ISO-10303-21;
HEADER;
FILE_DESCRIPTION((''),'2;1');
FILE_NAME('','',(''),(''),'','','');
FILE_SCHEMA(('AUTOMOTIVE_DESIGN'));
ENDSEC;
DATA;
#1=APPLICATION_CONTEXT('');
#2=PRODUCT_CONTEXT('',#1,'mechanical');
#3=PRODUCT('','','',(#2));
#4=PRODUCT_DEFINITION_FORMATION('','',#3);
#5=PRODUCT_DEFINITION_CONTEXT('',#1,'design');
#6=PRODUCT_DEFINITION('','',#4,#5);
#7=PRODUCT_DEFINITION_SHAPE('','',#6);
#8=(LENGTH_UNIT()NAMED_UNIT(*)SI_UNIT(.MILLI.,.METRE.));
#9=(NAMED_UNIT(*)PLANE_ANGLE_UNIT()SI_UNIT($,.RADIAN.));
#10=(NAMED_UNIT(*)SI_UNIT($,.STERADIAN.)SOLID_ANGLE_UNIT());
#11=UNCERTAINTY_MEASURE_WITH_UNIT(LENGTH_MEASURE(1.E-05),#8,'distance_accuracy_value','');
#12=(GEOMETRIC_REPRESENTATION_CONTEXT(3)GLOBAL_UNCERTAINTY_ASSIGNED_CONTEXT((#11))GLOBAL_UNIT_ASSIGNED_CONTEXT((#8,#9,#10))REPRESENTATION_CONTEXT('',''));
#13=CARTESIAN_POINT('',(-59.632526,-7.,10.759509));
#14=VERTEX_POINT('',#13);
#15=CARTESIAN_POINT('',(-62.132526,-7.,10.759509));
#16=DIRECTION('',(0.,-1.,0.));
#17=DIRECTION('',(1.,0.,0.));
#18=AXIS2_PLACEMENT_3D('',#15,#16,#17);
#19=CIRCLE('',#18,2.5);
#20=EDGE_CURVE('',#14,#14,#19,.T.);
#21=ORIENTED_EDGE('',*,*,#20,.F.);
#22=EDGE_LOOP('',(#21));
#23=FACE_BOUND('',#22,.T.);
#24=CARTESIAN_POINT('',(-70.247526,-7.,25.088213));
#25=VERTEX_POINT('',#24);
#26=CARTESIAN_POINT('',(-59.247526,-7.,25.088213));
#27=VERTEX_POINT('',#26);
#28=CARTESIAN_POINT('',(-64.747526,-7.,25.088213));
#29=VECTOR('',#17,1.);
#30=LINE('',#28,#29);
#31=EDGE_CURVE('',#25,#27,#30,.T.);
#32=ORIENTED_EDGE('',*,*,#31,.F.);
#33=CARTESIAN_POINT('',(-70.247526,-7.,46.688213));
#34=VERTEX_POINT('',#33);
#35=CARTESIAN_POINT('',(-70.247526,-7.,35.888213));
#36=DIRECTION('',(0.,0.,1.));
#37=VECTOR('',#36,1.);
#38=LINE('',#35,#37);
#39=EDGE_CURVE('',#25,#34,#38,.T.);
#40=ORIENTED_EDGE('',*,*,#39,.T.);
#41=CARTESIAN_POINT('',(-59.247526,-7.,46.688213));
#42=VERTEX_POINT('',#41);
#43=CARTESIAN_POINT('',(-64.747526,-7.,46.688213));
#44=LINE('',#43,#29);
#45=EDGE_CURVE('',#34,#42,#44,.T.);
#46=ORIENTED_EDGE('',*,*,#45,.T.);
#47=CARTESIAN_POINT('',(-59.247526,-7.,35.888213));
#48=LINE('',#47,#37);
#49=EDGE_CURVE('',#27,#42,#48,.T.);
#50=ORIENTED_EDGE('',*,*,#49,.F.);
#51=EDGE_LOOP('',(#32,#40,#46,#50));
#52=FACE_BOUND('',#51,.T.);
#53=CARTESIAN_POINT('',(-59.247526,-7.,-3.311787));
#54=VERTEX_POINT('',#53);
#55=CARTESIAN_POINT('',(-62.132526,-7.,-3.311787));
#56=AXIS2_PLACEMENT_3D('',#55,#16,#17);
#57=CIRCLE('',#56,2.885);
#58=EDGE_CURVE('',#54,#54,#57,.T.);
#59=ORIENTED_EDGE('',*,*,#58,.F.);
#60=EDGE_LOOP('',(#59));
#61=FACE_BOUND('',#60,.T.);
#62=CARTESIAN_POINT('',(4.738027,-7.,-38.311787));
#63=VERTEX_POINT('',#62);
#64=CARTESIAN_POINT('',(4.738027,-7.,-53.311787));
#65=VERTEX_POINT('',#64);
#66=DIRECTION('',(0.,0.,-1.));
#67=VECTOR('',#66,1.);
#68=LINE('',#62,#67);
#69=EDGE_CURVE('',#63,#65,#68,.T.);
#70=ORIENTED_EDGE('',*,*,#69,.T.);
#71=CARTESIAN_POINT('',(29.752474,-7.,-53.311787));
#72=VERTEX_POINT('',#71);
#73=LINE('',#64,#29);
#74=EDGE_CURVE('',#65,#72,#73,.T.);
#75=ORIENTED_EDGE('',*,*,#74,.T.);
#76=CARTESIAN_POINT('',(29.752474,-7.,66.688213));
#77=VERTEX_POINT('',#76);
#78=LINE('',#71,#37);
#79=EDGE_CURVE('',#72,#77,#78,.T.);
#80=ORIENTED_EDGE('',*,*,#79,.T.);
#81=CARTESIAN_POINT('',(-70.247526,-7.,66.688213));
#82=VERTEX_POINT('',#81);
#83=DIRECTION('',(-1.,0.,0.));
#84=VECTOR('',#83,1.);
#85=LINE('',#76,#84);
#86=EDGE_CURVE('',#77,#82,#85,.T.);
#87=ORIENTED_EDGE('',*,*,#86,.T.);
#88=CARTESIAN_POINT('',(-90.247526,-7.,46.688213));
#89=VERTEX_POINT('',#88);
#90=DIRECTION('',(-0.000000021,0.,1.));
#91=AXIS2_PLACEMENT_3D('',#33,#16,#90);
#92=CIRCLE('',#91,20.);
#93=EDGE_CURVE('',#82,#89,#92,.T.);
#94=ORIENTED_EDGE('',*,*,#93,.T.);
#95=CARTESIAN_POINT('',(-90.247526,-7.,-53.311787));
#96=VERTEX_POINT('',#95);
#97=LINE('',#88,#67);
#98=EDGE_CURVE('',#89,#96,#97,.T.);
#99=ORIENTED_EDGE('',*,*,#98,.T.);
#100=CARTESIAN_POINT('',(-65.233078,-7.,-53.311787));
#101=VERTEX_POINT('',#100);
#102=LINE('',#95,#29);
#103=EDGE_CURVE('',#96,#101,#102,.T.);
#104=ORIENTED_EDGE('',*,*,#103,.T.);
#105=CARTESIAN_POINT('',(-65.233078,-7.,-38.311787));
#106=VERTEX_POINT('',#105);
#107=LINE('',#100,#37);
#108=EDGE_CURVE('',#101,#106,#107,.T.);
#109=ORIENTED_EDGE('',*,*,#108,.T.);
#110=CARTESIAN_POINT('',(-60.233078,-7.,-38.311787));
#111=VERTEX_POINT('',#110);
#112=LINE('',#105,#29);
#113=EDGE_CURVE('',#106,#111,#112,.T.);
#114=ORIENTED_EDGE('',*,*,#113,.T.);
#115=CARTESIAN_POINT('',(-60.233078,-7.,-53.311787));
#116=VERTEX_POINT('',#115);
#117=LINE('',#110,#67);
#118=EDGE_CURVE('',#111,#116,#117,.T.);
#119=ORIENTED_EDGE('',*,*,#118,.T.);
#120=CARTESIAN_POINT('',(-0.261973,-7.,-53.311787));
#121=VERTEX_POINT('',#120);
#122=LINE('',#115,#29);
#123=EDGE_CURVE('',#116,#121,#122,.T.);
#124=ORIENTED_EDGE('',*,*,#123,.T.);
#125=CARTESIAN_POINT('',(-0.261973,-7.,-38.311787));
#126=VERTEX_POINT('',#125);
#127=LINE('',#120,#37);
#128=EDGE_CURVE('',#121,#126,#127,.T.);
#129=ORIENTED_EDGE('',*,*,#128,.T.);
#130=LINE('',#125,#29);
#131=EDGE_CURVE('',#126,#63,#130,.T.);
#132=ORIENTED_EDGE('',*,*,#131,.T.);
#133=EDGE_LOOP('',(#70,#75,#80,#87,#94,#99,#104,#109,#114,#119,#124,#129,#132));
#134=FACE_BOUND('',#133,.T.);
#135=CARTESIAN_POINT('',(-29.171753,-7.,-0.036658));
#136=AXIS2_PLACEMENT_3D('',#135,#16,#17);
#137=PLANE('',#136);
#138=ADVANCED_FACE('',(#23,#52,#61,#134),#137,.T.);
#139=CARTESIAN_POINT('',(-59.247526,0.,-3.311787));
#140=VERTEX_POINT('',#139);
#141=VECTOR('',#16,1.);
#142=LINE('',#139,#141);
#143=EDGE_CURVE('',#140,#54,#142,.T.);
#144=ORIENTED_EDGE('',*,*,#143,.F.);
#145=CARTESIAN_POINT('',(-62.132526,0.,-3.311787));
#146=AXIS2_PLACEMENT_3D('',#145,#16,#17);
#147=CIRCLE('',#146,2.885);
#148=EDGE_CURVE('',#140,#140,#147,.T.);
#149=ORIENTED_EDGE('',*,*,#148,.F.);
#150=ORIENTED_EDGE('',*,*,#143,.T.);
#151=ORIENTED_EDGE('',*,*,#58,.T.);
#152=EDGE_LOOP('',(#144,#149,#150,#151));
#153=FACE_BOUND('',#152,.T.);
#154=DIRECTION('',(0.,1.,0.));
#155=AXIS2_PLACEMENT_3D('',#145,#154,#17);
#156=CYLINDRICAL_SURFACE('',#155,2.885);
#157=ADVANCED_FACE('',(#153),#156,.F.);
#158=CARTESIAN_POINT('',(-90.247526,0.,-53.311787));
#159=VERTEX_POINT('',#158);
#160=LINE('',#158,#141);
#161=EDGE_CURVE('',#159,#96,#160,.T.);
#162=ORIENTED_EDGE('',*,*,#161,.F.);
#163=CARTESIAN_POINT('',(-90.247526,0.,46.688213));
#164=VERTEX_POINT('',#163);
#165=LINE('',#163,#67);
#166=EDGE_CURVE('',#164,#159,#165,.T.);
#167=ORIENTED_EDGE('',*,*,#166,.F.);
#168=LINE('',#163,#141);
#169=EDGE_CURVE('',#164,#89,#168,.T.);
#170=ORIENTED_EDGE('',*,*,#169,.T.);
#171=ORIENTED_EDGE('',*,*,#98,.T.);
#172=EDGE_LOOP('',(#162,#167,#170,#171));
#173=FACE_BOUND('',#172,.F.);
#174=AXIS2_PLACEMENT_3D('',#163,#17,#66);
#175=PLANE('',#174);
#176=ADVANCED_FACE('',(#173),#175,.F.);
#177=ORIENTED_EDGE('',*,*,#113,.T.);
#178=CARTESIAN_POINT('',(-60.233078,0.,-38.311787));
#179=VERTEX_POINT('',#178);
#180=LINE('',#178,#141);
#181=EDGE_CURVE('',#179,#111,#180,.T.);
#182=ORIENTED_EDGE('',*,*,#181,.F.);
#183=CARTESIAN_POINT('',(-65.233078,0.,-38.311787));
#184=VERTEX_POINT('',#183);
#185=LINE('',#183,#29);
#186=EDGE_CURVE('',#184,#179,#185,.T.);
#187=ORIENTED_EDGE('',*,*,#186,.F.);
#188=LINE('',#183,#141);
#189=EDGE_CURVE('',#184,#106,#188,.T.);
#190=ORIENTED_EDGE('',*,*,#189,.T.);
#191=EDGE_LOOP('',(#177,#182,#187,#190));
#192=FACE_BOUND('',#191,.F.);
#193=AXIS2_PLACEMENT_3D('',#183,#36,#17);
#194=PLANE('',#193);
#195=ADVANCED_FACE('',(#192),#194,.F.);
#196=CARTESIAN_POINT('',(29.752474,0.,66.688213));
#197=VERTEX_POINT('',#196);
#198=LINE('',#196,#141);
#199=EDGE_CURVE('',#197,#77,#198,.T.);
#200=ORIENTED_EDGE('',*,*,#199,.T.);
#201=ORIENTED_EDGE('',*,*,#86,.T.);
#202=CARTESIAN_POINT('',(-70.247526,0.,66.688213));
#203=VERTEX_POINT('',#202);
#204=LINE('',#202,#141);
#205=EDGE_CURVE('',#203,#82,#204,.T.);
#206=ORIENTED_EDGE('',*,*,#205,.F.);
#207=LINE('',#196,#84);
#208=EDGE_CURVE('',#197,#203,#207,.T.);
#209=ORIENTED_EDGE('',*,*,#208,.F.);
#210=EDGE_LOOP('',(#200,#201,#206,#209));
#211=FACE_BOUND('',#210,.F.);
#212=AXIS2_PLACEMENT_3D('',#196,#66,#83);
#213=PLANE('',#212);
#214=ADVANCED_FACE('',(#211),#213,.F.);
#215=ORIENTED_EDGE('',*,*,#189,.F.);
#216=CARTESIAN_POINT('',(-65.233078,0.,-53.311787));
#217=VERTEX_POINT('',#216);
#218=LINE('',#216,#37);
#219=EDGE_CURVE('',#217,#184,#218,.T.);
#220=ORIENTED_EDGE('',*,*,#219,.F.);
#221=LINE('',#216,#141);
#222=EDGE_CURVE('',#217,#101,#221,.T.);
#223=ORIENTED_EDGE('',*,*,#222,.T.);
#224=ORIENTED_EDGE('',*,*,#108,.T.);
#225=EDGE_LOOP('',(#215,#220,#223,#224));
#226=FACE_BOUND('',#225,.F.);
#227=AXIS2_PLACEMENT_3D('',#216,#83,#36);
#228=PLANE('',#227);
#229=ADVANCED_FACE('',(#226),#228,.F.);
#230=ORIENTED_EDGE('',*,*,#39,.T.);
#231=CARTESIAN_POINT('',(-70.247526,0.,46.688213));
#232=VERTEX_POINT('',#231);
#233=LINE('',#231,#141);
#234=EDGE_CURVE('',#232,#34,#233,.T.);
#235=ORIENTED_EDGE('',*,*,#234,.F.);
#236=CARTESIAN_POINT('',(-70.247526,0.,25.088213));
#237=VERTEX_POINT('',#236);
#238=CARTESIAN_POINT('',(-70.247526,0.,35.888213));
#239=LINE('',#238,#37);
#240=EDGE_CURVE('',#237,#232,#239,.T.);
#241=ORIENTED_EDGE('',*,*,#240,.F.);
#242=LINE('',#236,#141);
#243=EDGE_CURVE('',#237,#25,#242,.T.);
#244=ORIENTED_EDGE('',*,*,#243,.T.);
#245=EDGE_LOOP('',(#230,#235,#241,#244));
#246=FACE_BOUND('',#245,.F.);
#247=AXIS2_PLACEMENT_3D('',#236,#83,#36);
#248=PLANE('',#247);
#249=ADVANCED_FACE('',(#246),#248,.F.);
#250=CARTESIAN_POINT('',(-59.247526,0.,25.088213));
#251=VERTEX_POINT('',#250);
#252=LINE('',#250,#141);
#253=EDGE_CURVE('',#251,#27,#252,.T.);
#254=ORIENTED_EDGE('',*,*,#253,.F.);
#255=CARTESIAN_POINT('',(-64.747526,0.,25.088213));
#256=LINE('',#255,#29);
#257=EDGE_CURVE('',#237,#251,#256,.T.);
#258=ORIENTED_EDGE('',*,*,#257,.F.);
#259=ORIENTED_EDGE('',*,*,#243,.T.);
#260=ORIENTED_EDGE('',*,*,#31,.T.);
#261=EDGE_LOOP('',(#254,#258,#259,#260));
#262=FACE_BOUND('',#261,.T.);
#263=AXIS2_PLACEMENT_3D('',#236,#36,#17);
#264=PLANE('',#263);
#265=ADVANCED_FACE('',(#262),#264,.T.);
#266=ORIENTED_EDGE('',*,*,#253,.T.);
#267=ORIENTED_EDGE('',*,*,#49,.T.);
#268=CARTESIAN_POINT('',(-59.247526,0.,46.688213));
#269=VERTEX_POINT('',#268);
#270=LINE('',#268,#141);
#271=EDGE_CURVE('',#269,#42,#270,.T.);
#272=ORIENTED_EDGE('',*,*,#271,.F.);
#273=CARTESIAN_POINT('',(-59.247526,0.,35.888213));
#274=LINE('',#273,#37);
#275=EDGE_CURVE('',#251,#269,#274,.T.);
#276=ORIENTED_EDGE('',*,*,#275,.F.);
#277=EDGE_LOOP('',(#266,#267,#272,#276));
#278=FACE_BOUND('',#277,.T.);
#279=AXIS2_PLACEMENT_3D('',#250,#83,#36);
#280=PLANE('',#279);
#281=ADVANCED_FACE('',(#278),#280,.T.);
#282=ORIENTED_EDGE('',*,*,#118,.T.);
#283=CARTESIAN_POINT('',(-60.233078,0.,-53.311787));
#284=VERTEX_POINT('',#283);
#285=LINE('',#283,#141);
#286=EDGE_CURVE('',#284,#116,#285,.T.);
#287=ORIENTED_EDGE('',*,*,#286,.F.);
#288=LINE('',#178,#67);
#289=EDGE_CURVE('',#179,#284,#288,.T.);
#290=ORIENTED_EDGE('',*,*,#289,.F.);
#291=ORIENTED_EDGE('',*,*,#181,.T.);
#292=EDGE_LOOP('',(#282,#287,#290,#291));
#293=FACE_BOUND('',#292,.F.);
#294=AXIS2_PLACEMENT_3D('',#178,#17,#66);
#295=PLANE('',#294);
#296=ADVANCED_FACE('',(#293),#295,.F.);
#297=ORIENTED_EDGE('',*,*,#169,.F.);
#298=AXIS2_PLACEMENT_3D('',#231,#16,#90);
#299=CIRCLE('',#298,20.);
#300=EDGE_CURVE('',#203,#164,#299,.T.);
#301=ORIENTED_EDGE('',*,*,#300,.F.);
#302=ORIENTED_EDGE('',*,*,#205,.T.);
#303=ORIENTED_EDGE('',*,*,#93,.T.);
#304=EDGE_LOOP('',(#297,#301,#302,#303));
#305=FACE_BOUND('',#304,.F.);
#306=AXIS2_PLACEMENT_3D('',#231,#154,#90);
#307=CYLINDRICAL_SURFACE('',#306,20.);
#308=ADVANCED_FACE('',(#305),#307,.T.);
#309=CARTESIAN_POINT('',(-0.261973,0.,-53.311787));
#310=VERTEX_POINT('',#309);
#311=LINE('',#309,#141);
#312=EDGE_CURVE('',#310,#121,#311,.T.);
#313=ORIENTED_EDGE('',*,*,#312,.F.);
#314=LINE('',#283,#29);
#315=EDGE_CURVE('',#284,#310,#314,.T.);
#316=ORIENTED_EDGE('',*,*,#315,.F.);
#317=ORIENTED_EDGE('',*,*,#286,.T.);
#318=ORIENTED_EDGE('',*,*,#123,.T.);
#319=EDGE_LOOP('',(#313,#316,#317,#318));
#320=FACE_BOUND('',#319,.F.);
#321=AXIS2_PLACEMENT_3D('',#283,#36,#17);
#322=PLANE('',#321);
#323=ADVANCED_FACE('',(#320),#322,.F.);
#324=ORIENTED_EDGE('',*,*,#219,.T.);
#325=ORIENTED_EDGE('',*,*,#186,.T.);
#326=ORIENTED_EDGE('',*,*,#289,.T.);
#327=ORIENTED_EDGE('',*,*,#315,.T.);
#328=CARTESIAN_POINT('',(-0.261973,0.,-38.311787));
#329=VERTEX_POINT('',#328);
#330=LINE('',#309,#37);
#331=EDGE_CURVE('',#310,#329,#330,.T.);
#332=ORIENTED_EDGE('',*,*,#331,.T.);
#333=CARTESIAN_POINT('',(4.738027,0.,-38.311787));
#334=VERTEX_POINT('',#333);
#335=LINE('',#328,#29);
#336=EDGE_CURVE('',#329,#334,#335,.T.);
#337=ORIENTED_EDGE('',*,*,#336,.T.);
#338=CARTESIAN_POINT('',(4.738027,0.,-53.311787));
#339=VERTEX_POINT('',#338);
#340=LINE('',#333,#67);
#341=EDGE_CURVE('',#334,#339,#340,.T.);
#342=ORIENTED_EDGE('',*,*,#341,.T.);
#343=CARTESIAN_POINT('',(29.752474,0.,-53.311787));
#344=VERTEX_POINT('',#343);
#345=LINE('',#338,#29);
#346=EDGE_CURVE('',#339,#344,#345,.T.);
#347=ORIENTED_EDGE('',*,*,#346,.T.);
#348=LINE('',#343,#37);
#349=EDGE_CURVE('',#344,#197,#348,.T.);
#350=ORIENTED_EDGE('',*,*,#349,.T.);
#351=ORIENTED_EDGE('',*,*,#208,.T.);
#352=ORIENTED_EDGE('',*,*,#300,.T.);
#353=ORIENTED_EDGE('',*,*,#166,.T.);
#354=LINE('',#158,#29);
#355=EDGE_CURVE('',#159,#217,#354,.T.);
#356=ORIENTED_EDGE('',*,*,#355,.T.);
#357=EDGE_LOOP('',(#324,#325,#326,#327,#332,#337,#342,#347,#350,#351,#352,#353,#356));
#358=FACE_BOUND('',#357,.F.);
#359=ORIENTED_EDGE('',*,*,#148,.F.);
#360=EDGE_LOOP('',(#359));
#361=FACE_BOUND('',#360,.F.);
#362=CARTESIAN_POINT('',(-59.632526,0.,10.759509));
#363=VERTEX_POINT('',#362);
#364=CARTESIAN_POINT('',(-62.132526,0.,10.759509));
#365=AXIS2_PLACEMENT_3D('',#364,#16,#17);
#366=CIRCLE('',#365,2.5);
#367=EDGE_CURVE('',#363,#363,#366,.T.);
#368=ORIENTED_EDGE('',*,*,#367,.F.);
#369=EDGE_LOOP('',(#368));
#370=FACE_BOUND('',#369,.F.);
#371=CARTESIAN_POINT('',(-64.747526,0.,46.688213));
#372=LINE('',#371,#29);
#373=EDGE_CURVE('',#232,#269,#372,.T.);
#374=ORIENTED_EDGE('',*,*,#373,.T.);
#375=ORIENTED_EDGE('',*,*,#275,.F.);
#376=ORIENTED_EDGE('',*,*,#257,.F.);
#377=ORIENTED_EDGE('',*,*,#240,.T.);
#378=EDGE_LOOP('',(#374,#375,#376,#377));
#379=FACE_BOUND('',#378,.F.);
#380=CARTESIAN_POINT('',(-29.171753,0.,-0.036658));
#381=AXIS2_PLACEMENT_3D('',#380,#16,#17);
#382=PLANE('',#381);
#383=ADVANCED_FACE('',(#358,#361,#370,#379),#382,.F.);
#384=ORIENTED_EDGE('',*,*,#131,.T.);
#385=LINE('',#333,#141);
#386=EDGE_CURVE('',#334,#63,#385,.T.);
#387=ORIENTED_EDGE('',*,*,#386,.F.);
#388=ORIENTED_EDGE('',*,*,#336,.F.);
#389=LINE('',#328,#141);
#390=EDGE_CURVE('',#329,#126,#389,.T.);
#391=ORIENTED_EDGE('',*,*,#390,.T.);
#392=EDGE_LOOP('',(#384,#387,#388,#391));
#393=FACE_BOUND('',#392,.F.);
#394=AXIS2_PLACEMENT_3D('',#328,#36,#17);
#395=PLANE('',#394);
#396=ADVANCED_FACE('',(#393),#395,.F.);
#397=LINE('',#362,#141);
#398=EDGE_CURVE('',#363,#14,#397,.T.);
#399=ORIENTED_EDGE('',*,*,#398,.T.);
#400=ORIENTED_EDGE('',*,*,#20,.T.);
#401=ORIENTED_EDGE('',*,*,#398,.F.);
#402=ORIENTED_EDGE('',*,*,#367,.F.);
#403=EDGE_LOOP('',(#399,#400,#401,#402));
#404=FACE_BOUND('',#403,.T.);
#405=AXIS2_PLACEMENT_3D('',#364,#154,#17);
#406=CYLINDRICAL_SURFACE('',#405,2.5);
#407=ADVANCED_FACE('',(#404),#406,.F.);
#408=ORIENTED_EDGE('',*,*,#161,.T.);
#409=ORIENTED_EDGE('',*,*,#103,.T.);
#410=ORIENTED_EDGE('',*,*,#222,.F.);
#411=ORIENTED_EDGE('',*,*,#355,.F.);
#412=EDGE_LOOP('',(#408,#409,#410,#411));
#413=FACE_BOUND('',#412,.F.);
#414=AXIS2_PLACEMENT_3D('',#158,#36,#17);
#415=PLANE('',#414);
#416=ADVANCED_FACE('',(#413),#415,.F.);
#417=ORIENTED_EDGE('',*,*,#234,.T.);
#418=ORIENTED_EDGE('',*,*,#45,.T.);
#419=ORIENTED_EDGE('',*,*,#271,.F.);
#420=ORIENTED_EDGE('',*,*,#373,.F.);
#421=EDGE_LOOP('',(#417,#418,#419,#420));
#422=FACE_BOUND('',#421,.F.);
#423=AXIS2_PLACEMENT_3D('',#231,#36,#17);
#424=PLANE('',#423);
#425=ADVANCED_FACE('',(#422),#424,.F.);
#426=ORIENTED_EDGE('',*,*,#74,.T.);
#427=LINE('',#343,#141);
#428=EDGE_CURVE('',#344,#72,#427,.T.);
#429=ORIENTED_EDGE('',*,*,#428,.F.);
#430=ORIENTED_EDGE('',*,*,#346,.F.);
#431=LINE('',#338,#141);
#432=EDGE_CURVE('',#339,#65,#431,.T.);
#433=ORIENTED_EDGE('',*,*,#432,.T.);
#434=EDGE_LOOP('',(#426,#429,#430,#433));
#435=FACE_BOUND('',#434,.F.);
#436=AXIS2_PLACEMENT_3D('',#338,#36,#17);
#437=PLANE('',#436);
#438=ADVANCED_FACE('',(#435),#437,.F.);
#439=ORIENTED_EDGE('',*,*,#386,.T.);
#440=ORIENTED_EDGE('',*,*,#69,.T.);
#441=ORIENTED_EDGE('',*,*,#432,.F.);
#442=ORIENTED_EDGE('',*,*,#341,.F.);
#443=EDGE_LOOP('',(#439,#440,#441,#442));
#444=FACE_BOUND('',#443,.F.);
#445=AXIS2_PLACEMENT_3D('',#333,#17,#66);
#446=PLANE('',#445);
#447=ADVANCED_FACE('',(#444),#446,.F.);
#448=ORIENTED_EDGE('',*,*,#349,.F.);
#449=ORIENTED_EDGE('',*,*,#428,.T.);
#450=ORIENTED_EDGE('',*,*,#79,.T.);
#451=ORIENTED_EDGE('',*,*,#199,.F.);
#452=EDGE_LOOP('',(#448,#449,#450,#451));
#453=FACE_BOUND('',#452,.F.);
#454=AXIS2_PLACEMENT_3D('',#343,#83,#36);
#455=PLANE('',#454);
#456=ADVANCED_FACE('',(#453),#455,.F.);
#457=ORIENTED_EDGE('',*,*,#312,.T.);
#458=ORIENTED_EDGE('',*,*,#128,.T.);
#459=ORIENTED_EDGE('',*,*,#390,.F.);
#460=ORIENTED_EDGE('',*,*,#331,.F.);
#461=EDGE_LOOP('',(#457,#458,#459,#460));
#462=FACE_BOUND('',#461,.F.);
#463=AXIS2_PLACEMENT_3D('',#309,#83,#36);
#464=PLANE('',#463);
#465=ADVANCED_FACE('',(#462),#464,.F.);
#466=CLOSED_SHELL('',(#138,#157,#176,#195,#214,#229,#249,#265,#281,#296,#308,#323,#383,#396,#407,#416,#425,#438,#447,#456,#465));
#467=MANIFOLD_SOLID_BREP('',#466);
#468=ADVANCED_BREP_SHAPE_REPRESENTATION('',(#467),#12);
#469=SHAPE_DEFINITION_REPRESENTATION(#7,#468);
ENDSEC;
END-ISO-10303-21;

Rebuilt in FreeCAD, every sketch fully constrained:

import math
import FreeCAD as App
import Part
import Sketcher

V = App.Vector


def add_polygon(sketch, points):
    """Adds a closed chain of lines whose ends are joined by coincident constraints."""
    first, n = sketch.GeometryCount, len(points)
    for a, b in zip(points, points[1:] + points[:1]):
        sketch.addGeometry(Part.LineSegment(App.Vector(*a, 0), App.Vector(*b, 0)), False)
    for i in range(n):
        sketch.addConstraint(Sketcher.Constraint("Coincident", first + i, 2, first + (i + 1) % n, 1))

doc = App.newDocument("Part")
body = doc.addObject("PartDesign::Body", "Body")

sketch1 = body.newObject("Sketcher::SketchObject", "Sketch")
sketch1.AttachmentSupport = (doc.getObject("XZ_Plane"), [""])
sketch1.MapMode = "FlatFace"
sketch1.addGeometry(Part.LineSegment(V(29.8, -53.3, 0), V(29.8, 66.7, 0)), False)
sketch1.addGeometry(Part.LineSegment(V(29.8, 66.7, 0), V(-70.2, 66.7, 0)), False)
sketch1.addGeometry(Part.ArcOfCircle(Part.Circle(V(-70.2, 46.7, 0), V(0, 0, 1), 20), math.radians(90), math.radians(180)), False)
sketch1.addGeometry(Part.LineSegment(V(-90.2, 46.7, 0), V(-90.2, -53.3, 0)), False)
sketch1.addGeometry(Part.LineSegment(V(-90.2, -53.3, 0), V(-65.2, -53.3, 0)), False)
sketch1.addGeometry(Part.LineSegment(V(-65.2, -53.3, 0), V(-65.2, -38.3, 0)), False)
sketch1.addGeometry(Part.LineSegment(V(-65.2, -38.3, 0), V(-60.2, -38.3, 0)), False)
sketch1.addGeometry(Part.LineSegment(V(-60.2, -38.3, 0), V(-60.2, -53.3, 0)), False)
sketch1.addGeometry(Part.LineSegment(V(-60.2, -53.3, 0), V(-0.3, -53.3, 0)), False)
sketch1.addGeometry(Part.LineSegment(V(-0.3, -53.3, 0), V(-0.3, -38.3, 0)), False)
sketch1.addGeometry(Part.LineSegment(V(-0.3, -38.3, 0), V(4.7, -38.3, 0)), False)
sketch1.addGeometry(Part.LineSegment(V(4.7, -38.3, 0), V(4.7, -53.3, 0)), False)
sketch1.addGeometry(Part.LineSegment(V(4.7, -53.3, 0), V(29.8, -53.3, 0)), False)
sketch1.addGeometry(Part.Circle(V(-62.1, -3.3, 0), V(0, 0, 1), 2.9), False)
sketch1.addGeometry(Part.Circle(V(-62.1, 10.8, 0), V(0, 0, 1), 2.5), False)
add_polygon(sketch1, [(-59.2, 25.1), (-70.2, 25.1), (-70.2, 46.7), (-59.2, 46.7)])
sketch1.addConstraint([
    Sketcher.Constraint("Coincident", 0, 2, 1, 1),
    Sketcher.Constraint("Tangent", 1, 2, 2, 1),
    Sketcher.Constraint("Tangent", 2, 2, 3, 1),
    Sketcher.Constraint("Coincident", 3, 2, 4, 1),
    Sketcher.Constraint("Coincident", 4, 2, 5, 1),
    Sketcher.Constraint("Coincident", 5, 2, 6, 1),
    Sketcher.Constraint("Coincident", 6, 2, 7, 1),
    Sketcher.Constraint("Coincident", 7, 2, 8, 1),
    Sketcher.Constraint("Coincident", 8, 2, 9, 1),
    Sketcher.Constraint("Coincident", 9, 2, 10, 1),
    Sketcher.Constraint("Coincident", 10, 2, 11, 1),
    Sketcher.Constraint("Coincident", 11, 2, 12, 1),
    Sketcher.Constraint("Coincident", 12, 2, 0, 1),
    Sketcher.Constraint("Vertical", 0),
    Sketcher.Constraint("Horizontal", 1),
    Sketcher.Constraint("Vertical", 3),
    Sketcher.Constraint("Horizontal", 4),
    Sketcher.Constraint("Vertical", 5),
    Sketcher.Constraint("Horizontal", 6),
    Sketcher.Constraint("Vertical", 7),
    Sketcher.Constraint("Horizontal", 8),
    Sketcher.Constraint("Vertical", 9),
    Sketcher.Constraint("Horizontal", 10),
    Sketcher.Constraint("Vertical", 11),
    Sketcher.Constraint("Horizontal", 12),
    Sketcher.Constraint("Horizontal", 15),
    Sketcher.Constraint("Vertical", 16),
    Sketcher.Constraint("Horizontal", 17),
    Sketcher.Constraint("Vertical", 18),
    Sketcher.Constraint("Coincident", 16, 2, 2, 3),
    Sketcher.Constraint("Horizontal", 4, 2, 7, 2),
    Sketcher.Constraint("Horizontal", 6, 2, 9, 2),
    Sketcher.Constraint("Horizontal", 8, 2, 11, 2),
    Sketcher.Constraint("Vertical", 13, 3, 14, 3),
    Sketcher.Constraint("Equal", 6, 10),
    Sketcher.Constraint("Equal", 4, 12),
    Sketcher.Constraint("Equal", 1, 3),
    Sketcher.Constraint("Diameter", 14, 5.0),
    Sketcher.Constraint("Radius", 2, 20.0),
    Sketcher.Constraint("Diameter", 13, 5.77),
    Sketcher.Constraint("DistanceX", 1, 2, 1, 1, 100.0),
    Sketcher.Constraint("DistanceX", 6, 1, 6, 2, 5.0),
    Sketcher.Constraint("DistanceX", 15, 2, 15, 1, 11.0),
    Sketcher.Constraint("DistanceY", 5, 1, 5, 2, 15.0),
    Sketcher.Constraint("DistanceY", 16, 1, 16, 2, 21.6),
    Sketcher.Constraint("DistanceY", 13, 3, 2, 3, 50.0),
    Sketcher.Constraint("DistanceX", 2, 3, 13, 3, 8.115),
    Sketcher.Constraint("DistanceX", 4, 1, 4, 2, 25.014448),
    Sketcher.Constraint("DistanceY", -1, 1, 14, 3, 10.759509),
    Sketcher.Constraint("DistanceX", 4, 2, -1, 1, 65.233078),
    Sketcher.Constraint("DistanceY", -1, 1, 2, 3, 46.688213),
])
pad1 = body.newObject("PartDesign::Pad", "Pad")
pad1.Profile = sketch1
pad1.Length = 7

doc.recompute()
